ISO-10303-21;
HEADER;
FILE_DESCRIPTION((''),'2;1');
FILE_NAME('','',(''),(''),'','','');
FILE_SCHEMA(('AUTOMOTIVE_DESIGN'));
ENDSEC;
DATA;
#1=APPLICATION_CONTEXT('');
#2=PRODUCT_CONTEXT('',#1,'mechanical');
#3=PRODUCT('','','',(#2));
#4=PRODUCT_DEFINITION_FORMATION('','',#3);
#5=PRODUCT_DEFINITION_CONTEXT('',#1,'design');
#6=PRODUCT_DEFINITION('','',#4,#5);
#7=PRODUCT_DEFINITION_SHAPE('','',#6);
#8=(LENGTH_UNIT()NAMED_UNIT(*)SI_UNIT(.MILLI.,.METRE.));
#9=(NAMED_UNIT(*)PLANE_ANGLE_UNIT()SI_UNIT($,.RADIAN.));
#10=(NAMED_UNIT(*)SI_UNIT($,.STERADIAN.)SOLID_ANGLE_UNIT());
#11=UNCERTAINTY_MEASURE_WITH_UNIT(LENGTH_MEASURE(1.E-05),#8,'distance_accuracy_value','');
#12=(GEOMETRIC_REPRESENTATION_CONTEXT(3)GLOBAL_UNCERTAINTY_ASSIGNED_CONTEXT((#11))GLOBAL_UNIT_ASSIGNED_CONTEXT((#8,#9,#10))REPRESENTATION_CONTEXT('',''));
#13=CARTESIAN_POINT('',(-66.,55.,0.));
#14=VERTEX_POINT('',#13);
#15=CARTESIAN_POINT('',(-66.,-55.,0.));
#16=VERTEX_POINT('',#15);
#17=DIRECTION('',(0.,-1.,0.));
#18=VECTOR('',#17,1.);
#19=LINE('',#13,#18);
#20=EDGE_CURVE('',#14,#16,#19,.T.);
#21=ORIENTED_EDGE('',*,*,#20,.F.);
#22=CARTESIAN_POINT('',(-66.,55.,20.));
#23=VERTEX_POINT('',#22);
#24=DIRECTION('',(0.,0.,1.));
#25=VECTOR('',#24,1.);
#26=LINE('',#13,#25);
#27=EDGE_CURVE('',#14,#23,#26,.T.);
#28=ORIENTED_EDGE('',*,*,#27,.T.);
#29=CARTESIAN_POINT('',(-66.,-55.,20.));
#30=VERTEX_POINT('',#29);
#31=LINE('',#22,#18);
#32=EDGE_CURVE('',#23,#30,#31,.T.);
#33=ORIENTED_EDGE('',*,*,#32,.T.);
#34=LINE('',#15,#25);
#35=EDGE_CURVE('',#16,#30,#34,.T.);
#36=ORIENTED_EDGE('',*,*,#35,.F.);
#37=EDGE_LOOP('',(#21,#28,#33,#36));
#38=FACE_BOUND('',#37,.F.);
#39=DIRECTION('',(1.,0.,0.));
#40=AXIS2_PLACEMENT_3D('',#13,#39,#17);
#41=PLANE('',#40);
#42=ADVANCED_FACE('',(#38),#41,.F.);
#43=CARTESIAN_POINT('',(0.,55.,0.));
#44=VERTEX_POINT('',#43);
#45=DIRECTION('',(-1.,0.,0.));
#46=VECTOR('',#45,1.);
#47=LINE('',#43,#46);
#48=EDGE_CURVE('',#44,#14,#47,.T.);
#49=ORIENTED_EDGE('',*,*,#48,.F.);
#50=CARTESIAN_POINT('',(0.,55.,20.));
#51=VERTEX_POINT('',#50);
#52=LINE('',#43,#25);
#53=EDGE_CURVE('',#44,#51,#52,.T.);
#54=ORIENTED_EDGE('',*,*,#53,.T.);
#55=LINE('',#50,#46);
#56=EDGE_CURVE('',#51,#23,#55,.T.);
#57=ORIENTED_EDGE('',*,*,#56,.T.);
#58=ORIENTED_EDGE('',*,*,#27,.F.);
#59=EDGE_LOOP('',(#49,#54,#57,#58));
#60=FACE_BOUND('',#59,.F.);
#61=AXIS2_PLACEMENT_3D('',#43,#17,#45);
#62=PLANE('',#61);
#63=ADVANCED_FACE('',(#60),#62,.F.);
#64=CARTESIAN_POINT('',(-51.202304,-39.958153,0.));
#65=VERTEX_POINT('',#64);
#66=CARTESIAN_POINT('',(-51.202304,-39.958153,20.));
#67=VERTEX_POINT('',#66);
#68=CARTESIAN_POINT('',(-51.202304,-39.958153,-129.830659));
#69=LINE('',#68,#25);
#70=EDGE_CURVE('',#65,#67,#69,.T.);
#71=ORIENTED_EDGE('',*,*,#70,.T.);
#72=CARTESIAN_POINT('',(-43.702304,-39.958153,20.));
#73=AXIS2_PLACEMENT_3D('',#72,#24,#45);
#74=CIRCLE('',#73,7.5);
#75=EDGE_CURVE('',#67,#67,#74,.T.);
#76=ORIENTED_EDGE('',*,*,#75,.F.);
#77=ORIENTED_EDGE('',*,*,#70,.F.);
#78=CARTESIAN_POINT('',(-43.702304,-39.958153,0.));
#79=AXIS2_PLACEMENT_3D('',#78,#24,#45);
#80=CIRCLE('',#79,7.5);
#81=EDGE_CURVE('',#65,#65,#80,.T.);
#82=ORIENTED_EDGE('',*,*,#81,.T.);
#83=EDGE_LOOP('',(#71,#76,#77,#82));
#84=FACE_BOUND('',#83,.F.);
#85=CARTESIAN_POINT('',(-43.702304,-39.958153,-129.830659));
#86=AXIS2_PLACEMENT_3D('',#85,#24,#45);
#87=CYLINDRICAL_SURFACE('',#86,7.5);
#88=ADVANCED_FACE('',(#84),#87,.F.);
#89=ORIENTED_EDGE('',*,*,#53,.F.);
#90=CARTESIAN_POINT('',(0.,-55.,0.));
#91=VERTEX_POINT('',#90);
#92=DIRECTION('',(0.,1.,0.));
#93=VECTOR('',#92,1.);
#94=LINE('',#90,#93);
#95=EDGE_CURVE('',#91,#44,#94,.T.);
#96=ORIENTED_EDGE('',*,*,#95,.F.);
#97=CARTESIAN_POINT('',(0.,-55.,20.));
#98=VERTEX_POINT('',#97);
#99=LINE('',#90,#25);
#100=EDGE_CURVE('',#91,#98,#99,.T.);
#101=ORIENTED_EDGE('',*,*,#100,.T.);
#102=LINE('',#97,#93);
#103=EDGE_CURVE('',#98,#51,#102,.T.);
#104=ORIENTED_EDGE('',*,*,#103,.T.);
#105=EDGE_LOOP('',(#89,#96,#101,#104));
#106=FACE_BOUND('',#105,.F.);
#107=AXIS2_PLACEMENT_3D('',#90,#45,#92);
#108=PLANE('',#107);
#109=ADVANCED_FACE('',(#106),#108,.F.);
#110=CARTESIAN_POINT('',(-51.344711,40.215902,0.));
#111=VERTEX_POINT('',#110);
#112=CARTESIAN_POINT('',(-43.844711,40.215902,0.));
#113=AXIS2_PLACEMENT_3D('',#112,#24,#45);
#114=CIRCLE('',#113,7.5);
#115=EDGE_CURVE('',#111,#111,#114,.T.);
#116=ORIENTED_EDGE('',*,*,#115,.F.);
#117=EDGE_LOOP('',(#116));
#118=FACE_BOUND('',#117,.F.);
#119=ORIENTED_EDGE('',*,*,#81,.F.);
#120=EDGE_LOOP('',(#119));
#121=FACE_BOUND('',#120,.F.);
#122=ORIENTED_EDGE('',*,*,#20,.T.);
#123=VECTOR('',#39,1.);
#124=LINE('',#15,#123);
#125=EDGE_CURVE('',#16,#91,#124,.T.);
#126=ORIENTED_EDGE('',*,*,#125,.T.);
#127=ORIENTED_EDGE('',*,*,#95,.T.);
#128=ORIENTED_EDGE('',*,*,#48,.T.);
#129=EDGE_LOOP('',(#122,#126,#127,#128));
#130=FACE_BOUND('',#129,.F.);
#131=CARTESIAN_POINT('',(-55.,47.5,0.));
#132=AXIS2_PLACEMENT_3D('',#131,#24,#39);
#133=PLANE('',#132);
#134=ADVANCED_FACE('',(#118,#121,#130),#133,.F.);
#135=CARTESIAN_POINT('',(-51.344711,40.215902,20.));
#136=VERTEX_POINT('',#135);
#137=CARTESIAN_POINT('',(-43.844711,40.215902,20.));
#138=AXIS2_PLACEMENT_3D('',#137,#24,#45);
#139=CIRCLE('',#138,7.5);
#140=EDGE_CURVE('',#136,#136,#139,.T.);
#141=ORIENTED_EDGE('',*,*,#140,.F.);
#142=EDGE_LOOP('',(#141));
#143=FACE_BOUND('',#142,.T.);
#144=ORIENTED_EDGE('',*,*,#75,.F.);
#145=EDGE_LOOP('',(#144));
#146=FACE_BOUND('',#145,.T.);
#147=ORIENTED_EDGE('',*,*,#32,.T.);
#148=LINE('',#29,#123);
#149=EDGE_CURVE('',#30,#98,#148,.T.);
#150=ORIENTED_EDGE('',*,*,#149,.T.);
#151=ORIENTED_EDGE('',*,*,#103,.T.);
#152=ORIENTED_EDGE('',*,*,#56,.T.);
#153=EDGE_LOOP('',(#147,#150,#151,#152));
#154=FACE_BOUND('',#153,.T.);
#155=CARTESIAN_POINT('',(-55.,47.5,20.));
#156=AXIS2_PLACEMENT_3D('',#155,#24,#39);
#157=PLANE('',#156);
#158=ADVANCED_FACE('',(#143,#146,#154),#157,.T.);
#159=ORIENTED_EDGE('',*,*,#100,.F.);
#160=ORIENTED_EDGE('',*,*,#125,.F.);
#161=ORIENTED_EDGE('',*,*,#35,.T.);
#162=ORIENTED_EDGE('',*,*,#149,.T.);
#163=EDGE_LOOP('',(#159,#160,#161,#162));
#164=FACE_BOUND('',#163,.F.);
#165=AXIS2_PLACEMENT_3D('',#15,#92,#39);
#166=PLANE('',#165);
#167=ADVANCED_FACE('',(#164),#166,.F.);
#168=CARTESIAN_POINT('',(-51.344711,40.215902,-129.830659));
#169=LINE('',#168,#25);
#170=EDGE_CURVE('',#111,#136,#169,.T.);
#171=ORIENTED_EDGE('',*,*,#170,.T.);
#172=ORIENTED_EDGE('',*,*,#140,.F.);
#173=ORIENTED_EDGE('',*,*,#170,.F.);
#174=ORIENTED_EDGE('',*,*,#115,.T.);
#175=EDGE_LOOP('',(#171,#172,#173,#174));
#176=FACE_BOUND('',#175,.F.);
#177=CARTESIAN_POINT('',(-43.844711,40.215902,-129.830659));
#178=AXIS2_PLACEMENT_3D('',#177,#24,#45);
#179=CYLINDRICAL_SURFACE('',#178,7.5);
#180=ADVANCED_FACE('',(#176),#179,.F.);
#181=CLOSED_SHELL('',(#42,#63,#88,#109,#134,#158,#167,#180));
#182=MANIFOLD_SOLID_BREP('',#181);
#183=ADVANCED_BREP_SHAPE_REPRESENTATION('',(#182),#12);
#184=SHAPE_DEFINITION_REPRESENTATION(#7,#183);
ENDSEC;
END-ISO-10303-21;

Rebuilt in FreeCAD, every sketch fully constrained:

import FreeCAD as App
import Part
import Sketcher

V = App.Vector

doc = App.newDocument("Part")
body = doc.addObject("PartDesign::Body", "Body")

# Sketch on XY plane
sketch1 = body.newObject("Sketcher::SketchObject", "Sketch")
sketch1.AttachmentSupport = (doc.getObject("XY_Plane"), [""])
sketch1.MapMode = "FlatFace"
sketch1.addGeometry([
    Part.LineSegment(V(-66, 55, 0), V(-66, -55, 0)),
    Part.LineSegment(V(-66, -55, 0), V(0, -55, 0)),
    Part.LineSegment(V(0, -55, 0), V(0, 55, 0)),
    Part.LineSegment(V(0, 55, 0), V(-66, 55, 0)),
], False)
sketch1.addConstraint([
    Sketcher.Constraint("Coincident", 0, 2, 1, 1),
    Sketcher.Constraint("Coincident", 1, 2, 2, 1),
    Sketcher.Constraint("Coincident", 2, 2, 3, 1),
    Sketcher.Constraint("Coincident", 3, 2, 0, 1),
    Sketcher.Constraint("Vertical", 0),
    Sketcher.Constraint("Horizontal", 1),
    Sketcher.Constraint("Vertical", 2),
    Sketcher.Constraint("Horizontal", 3),
    Sketcher.Constraint("Symmetric", 1, 2, 2, 2, -1, 1),
    Sketcher.Constraint("DistanceX", 1, 1, 1, 2, 66.0),
    Sketcher.Constraint("DistanceY", 0, 2, 0, 1, 110.0),
])
pad1 = body.newObject("PartDesign::Pad", "Pad")
pad1.Profile = sketch1
pad1.Length = 20

# Sketch on XY plane
sketch2 = body.newObject("Sketcher::SketchObject", "Sketch001")
sketch2.AttachmentSupport = (doc.getObject("XY_Plane"), [""])
sketch2.MapMode = "FlatFace"
sketch2.addGeometry([
    Part.Circle(V(-44, 40, 0), V(0, 0, 1), 8),
    Part.Circle(V(-44, -40, 0), V(0, 0, 1), 8),
], False)
sketch2.addConstraint([
    Sketcher.Constraint("Equal", 0, 1),
    Sketcher.Constraint("Diameter", 0, 15.0),
    Sketcher.Constraint("DistanceX", 0, 3, -1, 1, 43.844711),
    Sketcher.Constraint("DistanceY", -1, 1, 0, 3, 40.215902),
    Sketcher.Constraint("DistanceX", 1, 3, -1, 1, 43.702304),
    Sketcher.Constraint("DistanceY", 1, 3, -1, 1, 39.958153),
])
doc.recompute()
hole = body.newObject("PartDesign::Hole", "Hole")
hole.Profile = sketch2
hole.ThreadType = "None"
hole.Diameter = 15
hole.DepthType = "ThroughAll"
hole.Reversed = True

doc.recompute()
